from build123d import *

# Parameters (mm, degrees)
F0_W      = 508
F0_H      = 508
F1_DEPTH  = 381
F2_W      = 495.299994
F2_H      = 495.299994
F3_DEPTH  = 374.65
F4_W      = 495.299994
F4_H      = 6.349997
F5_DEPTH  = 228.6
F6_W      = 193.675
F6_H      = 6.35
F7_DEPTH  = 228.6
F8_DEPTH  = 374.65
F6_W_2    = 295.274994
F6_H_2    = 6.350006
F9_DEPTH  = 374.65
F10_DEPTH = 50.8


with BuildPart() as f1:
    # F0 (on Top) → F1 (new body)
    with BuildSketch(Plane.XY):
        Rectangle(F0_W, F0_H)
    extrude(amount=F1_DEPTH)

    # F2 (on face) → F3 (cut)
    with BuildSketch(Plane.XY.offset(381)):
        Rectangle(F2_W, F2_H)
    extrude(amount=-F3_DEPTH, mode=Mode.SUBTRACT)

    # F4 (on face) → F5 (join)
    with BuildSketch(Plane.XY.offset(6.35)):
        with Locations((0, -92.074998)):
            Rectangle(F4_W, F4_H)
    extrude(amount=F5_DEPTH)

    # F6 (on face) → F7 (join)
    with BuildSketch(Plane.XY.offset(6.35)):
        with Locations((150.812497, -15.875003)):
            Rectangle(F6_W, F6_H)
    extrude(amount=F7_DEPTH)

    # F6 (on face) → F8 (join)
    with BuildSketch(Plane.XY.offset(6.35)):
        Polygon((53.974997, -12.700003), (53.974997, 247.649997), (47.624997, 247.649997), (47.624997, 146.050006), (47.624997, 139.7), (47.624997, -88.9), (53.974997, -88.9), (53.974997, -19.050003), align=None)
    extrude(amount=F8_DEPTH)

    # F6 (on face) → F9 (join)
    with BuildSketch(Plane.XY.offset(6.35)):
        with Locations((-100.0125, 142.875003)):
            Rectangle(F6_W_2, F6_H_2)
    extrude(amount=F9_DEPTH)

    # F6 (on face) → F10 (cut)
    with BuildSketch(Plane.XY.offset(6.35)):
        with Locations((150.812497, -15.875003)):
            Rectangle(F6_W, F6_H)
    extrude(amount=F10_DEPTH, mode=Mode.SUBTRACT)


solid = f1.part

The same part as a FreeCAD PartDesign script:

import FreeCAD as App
import Part
import Sketcher
from FreeCAD import Vector
Q = App.Units.Quantity


def add_polygon(sketch, points):
    """Adds a closed chain of lines whose ends are joined by coincident constraints."""
    first, n = sketch.GeometryCount, len(points)
    for a, b in zip(points, points[1:] + points[:1]):
        sketch.addGeometry(Part.LineSegment(App.Vector(*a, 0), App.Vector(*b, 0)), False)
    for i in range(n):
        sketch.addConstraint(Sketcher.Constraint("Coincident", first + i, 2, first + (i + 1) % n, 1))

doc = App.newDocument("Part")
params = doc.addObject("Spreadsheet::Sheet", "Params")
for row, (alias, value) in enumerate([
    ("sketch1_width", "20 in"),
    ("pad1_length", "15 in"),
    ("pocket1_length", "14.75 in"),
    ("sketch3_height", "0.2499999 in"),
    ("pad2_length", "9 in"),
    ("sketch4_height", "0.25 in"),
    ("sketch4_width", "7.625 in"),
    ("pad3_length", "9 in"),
    ("sketch5_width", "0.25 in"),
    ("sketch5_height", "13.2499999 in"),
    ("pad4_length", "14.75 in"),
    ("pad5_length", "14.75 in"),
    ("sketch7_height", "0.25 in"),
    ("sketch7_width", "7.625 in"),
    ("pocket2_length", "2 in"),
], start=1):
    params.set(f"A{row}", alias)
    params.set(f"B{row}", "=" + value)
    params.setAlias(f"B{row}", alias)

body = doc.addObject("PartDesign::Body", "Body")

# Sketch on XY plane
sketch1 = body.newObject("Sketcher::SketchObject", "Sketch")
sketch1.AttachmentSupport = (doc.getObject("XY_Plane"), [""])
sketch1.MapMode = "FlatFace"
add_polygon(sketch1, [(-254, 254), (-254, -254), (254, -254), (254, 254)])  # lines 0-3
sketch1.addConstraint([
    Sketcher.Constraint("Vertical", 0),
    Sketcher.Constraint("Horizontal", 1),
    Sketcher.Constraint("Vertical", 2),
    Sketcher.Constraint("Horizontal", 3),
    Sketcher.Constraint("Symmetric", 0, 2, 2, 2, -1, 1),
    Sketcher.Constraint("Equal", 3, 0),
    Sketcher.Constraint("DistanceX", 1, 1, 1, 2, Q("20 in")),
])
sketch1.setExpression("Constraints[10]", "Params.sketch1_width")
pad1 = body.newObject("PartDesign::Pad", "Pad")
pad1.Profile = sketch1
pad1.setExpression("Length", "Params.pad1_length")

# Sketch on XY plane
sketch2 = body.newObject("Sketcher::SketchObject", "Sketch001")
sketch2.AttachmentSupport = (doc.getObject("XY_Plane"), [""])
sketch2.MapMode = "FlatFace"
sketch2.AttachmentOffset = App.Placement(Vector(0, 0, 15 * 25.4), App.Rotation())
add_polygon(sketch2, [(-248, 248), (-248, -248), (248, -248), (248, 248)])  # lines 0-3
sketch2.addConstraint([
    Sketcher.Constraint("Vertical", 0),
    Sketcher.Constraint("Horizontal", 1),
    Sketcher.Constraint("Vertical", 2),
    Sketcher.Constraint("Horizontal", 3),
    Sketcher.Constraint("Symmetric", 0, 2, 2, 2, -1, 1),
    Sketcher.Constraint("Equal", 3, 0),
    Sketcher.Constraint("DistanceX", 0, 2, -1, 1, Q("9.7499999 in")),
])
pocket1 = body.newObject("PartDesign::Pocket", "Pocket")
pocket1.Profile = sketch2
pocket1.setExpression("Length", "Params.pocket1_length")

# Sketch on XY plane
sketch3 = body.newObject("Sketcher::SketchObject", "Sketch002")
sketch3.AttachmentSupport = (doc.getObject("XY_Plane"), [""])
sketch3.MapMode = "FlatFace"
sketch3.AttachmentOffset = App.Placement(Vector(0, 0, 0.25 * 25.4), App.Rotation())
add_polygon(sketch3, [(-248, -89), (-248, -95), (248, -95), (248, -89)])  # lines 0-3
sketch3.addConstraint([
    Sketcher.Constraint("Vertical", 0),
    Sketcher.Constraint("Horizontal", 1),
    Sketcher.Constraint("Vertical", 2),
    Sketcher.Constraint("Horizontal", 3),
    Sketcher.Constraint("DistanceY", 0, 2, 0, 1, Q("0.2499999 in")),
    Sketcher.Constraint("DistanceY", 2, 2, -1, 1, Q("3.5 in")),
    Sketcher.Constraint("DistanceX", 0, 2, -1, 1, Q("9.7499999 in")),
    Sketcher.Constraint("DistanceX", -1, 1, 1, 2, Q("9.7499999 in")),
])
sketch3.setExpression("Constraints[8]", "Params.sketch3_height")
pad2 = body.newObject("PartDesign::Pad", "Pad001")
pad2.Profile = sketch3
pad2.setExpression("Length", "Params.pad2_length")

# Sketch on XY plane
sketch4 = body.newObject("Sketcher::SketchObject", "Sketch003")
sketch4.AttachmentSupport = (doc.getObject("XY_Plane"), [""])
sketch4.MapMode = "FlatFace"
sketch4.AttachmentOffset = App.Placement(Vector(0, 0, 0.25 * 25.4), App.Rotation())
add_polygon(sketch4, [(54, -13), (54, -19), (248, -19), (248, -13)])  # lines 0-3
sketch4.addConstraint([
    Sketcher.Constraint("Vertical", 0),
    Sketcher.Constraint("Horizontal", 1),
    Sketcher.Constraint("Vertical", 2),
    Sketcher.Constraint("Horizontal", 3),
    Sketcher.Constraint("DistanceY", 0, 2, 0, 1, Q("0.25 in")),
    Sketcher.Constraint("DistanceY", 2, 2, -1, 1, Q("0.5000001 in")),
    Sketcher.Constraint("DistanceX", 1, 1, 1, 2, Q("7.625 in")),
    Sketcher.Constraint("DistanceX", -1, 1, 1, 2, Q("9.7499999 in")),
])
sketch4.setExpression("Constraints[8]", "Params.sketch4_height")
sketch4.setExpression("Constraints[10]", "Params.sketch4_width")
pad3 = body.newObject("PartDesign::Pad", "Pad002")
pad3.Profile = sketch4
pad3.setExpression("Length", "Params.pad3_length")

# Sketch on XY plane
sketch5 = body.newObject("Sketcher::SketchObject", "Sketch004")
sketch5.AttachmentSupport = (doc.getObject("XY_Plane"), [""])
sketch5.MapMode = "FlatFace"
sketch5.AttachmentOffset = App.Placement(Vector(0, 0, 0.25 * 25.4), App.Rotation())
add_polygon(sketch5, [(54, 248), (48, 248), (48, -89), (54, -89)])  # lines 0-3
sketch5.addConstraint([
    Sketcher.Constraint("Horizontal", 0),
    Sketcher.Constraint("Vertical", 1),
    Sketcher.Constraint("Horizontal", 2),
    Sketcher.Constraint("Vertical", 3),
    Sketcher.Constraint("DistanceX", 0, 2, 0, 1, Q("0.25 in")),
    Sketcher.Constraint("DistanceY", 1, 2, 1, 1, Q("13.2499999 in")),
    Sketcher.Constraint("DistanceY", 1, 2, -1, 1, Q("3.5 in")),
    Sketcher.Constraint("DistanceX", -1, 1, 0, 2, Q("1.8749999 in")),
])
sketch5.setExpression("Constraints[8]", "Params.sketch5_width")
sketch5.setExpression("Constraints[9]", "Params.sketch5_height")
pad4 = body.newObject("PartDesign::Pad", "Pad003")
pad4.Profile = sketch5
pad4.setExpression("Length", "Params.pad4_length")

# Sketch on XY plane
sketch6 = body.newObject("Sketcher::SketchObject", "Sketch005")
sketch6.AttachmentSupport = (doc.getObject("XY_Plane"), [""])
sketch6.MapMode = "FlatFace"
sketch6.AttachmentOffset = App.Placement(Vector(0, 0, 0.25 * 25.4), App.Rotation())
add_polygon(sketch6, [(-248, 146), (-248, 140), (48, 140), (48, 146)])  # lines 0-3
sketch6.addConstraint([
    Sketcher.Constraint("Vertical", 0),
    Sketcher.Constraint("Horizontal", 1),
    Sketcher.Constraint("Vertical", 2),
    Sketcher.Constraint("Horizontal", 3),
    Sketcher.Constraint("DistanceY", -1, 1, 0, 2, Q("5.5 in")),
    Sketcher.Constraint("DistanceX", 0, 2, -1, 1, Q("9.7499999 in")),
    Sketcher.Constraint("DistanceX", -1, 1, 1, 2, Q("1.8749999 in")),
    Sketcher.Constraint("DistanceY", 0, 2, 0, 1, Q("6.350006 mm")),
])
pad5 = body.newObject("PartDesign::Pad", "Pad004")
pad5.Profile = sketch6
pad5.setExpression("Length", "Params.pad5_length")

# Sketch on XY plane
sketch7 = body.newObject("Sketcher::SketchObject", "Sketch006")
sketch7.AttachmentSupport = (doc.getObject("XY_Plane"), [""])
sketch7.MapMode = "FlatFace"
sketch7.AttachmentOffset = App.Placement(Vector(0, 0, 0.25 * 25.4), App.Rotation())
add_polygon(sketch7, [(54, -13), (54, -19), (248, -19), (248, -13)])  # lines 0-3
sketch7.addConstraint([
    Sketcher.Constraint("Vertical", 0),
    Sketcher.Constraint("Horizontal", 1),
    Sketcher.Constraint("Vertical", 2),
    Sketcher.Constraint("Horizontal", 3),
    Sketcher.Constraint("DistanceY", 0, 2, 0, 1, Q("0.25 in")),
    Sketcher.Constraint("DistanceY", 2, 2, -1, 1, Q("0.5000001 in")),
    Sketcher.Constraint("DistanceX", 1, 1, 1, 2, Q("7.625 in")),
    Sketcher.Constraint("DistanceX", -1, 1, 1, 2, Q("9.7499999 in")),
])
sketch7.setExpression("Constraints[8]", "Params.sketch7_height")
sketch7.setExpression("Constraints[10]", "Params.sketch7_width")
pocket2 = body.newObject("PartDesign::Pocket", "Pocket001")
pocket2.Profile = sketch7
pocket2.setExpression("Length", "Params.pocket2_length")
pocket2.Reversed = True

doc.recompute()
